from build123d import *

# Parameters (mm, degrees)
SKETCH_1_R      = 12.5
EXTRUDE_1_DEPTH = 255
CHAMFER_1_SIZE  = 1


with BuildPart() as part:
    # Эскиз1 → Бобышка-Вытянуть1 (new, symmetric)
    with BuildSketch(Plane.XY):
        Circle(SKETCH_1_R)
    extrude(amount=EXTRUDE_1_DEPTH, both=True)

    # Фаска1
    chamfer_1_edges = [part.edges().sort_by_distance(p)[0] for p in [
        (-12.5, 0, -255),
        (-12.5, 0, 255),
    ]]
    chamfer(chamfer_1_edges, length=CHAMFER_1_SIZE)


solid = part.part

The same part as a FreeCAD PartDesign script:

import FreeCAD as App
import Part
import Sketcher
from FreeCAD import Vector


def edges_at(feature, points):
    """Names of the edges that pass closest to the given points."""
    edges = feature.Shape.Edges
    near = lambda p: min(range(len(edges)), key=lambda i: edges[i].distToShape(Part.Vertex(*p))[0])
    return sorted({f"Edge{near(p) + 1}" for p in points})

doc = App.newDocument("Part")
params = doc.addObject("Spreadsheet::Sheet", "Params")
for row, (alias, value) in enumerate([
    ("sketch1_diameter", "25 mm"),
    ("pad1_length", "510 mm"),
    ("chamfer_size", "1 mm"),
], start=1):
    params.set(f"A{row}", alias)
    params.set(f"B{row}", "=" + value)
    params.setAlias(f"B{row}", alias)

body = doc.addObject("PartDesign::Body", "Body")

# Sketch on XY plane
sketch1 = body.newObject("Sketcher::SketchObject", "Sketch")
sketch1.AttachmentSupport = (doc.getObject("XY_Plane"), [""])
sketch1.MapMode = "FlatFace"
sketch1.addGeometry(Part.Circle(Vector(0, 0, 0), Vector(0, 0, 1), 12), False)
sketch1.addConstraint(Sketcher.Constraint("Coincident", 0, 3, -1, 1))
sketch1.addConstraint(Sketcher.Constraint("Diameter", 0, 25.0))
sketch1.setExpression("Constraints[1]", "Params.sketch1_diameter")
pad1 = body.newObject("PartDesign::Pad", "Pad")
pad1.Profile = sketch1
pad1.setExpression("Length", "Params.pad1_length")
pad1.Midplane = True
doc.recompute()

chamfer = body.newObject("PartDesign::Chamfer", "Chamfer")
chamfer.Base = (pad1, edges_at(pad1, [(-12.5, 0, -255), (-12.5, 0, 255)]))
chamfer.setExpression("Size", "Params.chamfer_size")

doc.recompute()
